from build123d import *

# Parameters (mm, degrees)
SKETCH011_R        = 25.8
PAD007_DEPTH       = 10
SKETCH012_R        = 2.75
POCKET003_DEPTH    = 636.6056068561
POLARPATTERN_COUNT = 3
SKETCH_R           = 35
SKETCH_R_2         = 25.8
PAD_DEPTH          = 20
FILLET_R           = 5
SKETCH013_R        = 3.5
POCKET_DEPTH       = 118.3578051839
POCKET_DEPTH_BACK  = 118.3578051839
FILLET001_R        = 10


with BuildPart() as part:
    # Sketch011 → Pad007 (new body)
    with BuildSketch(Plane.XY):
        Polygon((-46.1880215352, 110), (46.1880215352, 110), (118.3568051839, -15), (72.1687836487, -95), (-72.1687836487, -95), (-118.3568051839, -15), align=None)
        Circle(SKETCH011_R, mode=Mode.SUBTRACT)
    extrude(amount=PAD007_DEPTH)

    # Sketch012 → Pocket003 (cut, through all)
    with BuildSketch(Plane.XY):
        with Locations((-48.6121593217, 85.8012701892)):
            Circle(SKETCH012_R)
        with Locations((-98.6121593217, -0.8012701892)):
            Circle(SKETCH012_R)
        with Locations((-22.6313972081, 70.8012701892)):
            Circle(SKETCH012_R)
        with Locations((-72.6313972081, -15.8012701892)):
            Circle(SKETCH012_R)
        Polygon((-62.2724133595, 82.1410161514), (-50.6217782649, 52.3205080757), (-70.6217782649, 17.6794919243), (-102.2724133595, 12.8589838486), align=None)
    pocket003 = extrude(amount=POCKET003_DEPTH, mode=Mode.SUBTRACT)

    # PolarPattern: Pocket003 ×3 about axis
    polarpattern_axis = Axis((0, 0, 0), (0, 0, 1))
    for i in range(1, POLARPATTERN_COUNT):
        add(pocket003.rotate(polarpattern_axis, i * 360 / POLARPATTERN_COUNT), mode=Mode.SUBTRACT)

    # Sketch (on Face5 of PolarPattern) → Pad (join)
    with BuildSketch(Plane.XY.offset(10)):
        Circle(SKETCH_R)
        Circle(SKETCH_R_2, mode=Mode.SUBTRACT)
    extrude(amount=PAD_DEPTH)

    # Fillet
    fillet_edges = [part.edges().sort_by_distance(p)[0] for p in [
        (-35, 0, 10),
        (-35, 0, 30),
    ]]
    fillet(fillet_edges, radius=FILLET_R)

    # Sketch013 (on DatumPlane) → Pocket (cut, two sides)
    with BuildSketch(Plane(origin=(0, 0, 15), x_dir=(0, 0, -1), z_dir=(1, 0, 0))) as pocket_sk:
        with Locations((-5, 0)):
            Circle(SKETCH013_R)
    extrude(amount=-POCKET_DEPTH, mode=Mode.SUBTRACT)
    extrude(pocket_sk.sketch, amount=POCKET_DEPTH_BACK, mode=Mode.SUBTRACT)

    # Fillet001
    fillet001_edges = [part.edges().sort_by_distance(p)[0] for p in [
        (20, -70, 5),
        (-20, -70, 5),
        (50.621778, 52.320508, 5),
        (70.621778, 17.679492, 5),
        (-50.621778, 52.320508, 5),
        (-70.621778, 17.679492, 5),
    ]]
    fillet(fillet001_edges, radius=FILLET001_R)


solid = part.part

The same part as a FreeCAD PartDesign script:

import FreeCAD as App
import Part
import Sketcher
Q = App.Units.Quantity


def edges_at(feature, points):
    """Names of the edges that pass closest to the given points."""
    edges = feature.Shape.Edges
    near = lambda p: min(range(len(edges)), key=lambda i: edges[i].distToShape(Part.Vertex(*p))[0])
    return sorted({f"Edge{near(p) + 1}" for p in points})


def add_polygon(sketch, points):
    """Adds a closed chain of lines whose ends are joined by coincident constraints."""
    first, n = sketch.GeometryCount, len(points)
    for a, b in zip(points, points[1:] + points[:1]):
        sketch.addGeometry(Part.LineSegment(App.Vector(*a, 0), App.Vector(*b, 0)), False)
    for i in range(n):
        sketch.addConstraint(Sketcher.Constraint("Coincident", first + i, 2, first + (i + 1) % n, 1))

doc = App.newDocument("Part")
body = doc.addObject("PartDesign::Body", "Body")

# Sketch on XY plane
sketch1 = body.newObject("Sketcher::SketchObject", "Sketch")
sketch1.AttachmentSupport = (doc.getObject("XY_Plane"), [""])
sketch1.MapMode = "FlatFace"
add_polygon(sketch1, [(46.188022, 110), (-46.188022, 110), (-118.356805, -15), (-72.168784, -95), (72.168784, -95), (118.356805, -15)])  # lines 0-5
sketch1.addGeometry(Part.Circle(App.Vector(0, 0, 0), App.Vector(0, 0, 1), 25.8), False)  # 6
sketch1.addConstraint(Sketcher.Constraint("Horizontal", 0))
sketch1.addConstraint(Sketcher.Constraint("Horizontal", 3))
sketch1.addConstraint(Sketcher.Constraint("Coincident", 6, 3, -1, 1))
sketch1.addConstraint(Sketcher.Constraint("Symmetric", 1, 2, 4, 2, -2))
sketch1.addConstraint(Sketcher.Constraint("Parallel", 1, 4))
sketch1.addConstraint(Sketcher.Constraint("Parallel", 2, 5))
sketch1.addConstraint(Sketcher.Constraint("Equal", 2, 4))
sketch1.addConstraint(Sketcher.Constraint("Diameter", 6, 51.6))
sketch1.addConstraint(Sketcher.Constraint("Angle", 1, Q("-120 deg")))
sketch1.addConstraint(Sketcher.Constraint("DistanceY", -1, 1, 0, 2, 110.0))
sketch1.addConstraint(Sketcher.Constraint("DistanceY", 1, 2, -1, 1, 15.0))
sketch1.addConstraint(Sketcher.Constraint("DistanceY", 2, 2, -1, 1, 95.0))
sketch1.addConstraint(Sketcher.Constraint("DistanceX", 0, 2, 0, 1, 92.376043))
pad1 = body.newObject("PartDesign::Pad", "Pad")
pad1.Profile = sketch1
pad1.Length = 10

# Sketch on XY plane
sketch2 = body.newObject("Sketcher::SketchObject", "Sketch001")
sketch2.AttachmentSupport = (doc.getObject("XY_Plane"), [""])
sketch2.MapMode = "FlatFace"
sketch2.addGeometry(Part.Circle(App.Vector(-48.612159, 85.80127, 0), App.Vector(0, 0, 1), 2.75), False)  # 0
sketch2.addGeometry(Part.Circle(App.Vector(-98.612159, -0.80127, 0), App.Vector(0, 0, 1), 2.75), False)  # 1
sketch2.addGeometry(Part.Circle(App.Vector(-22.631397, 70.80127, 0), App.Vector(0, 0, 1), 2.75), False)  # 2
sketch2.addGeometry(Part.Circle(App.Vector(-72.631397, -15.80127, 0), App.Vector(0, 0, 1), 2.75), False)  # 3
add_polygon(sketch2, [(-50.621778, 52.320508), (-62.272413, 82.141016), (-102.272413, 12.858984), (-70.621778, 17.679492)])  # lines 4-7
sketch2.addConstraint(Sketcher.Constraint("Equal", 0, 1))
sketch2.addConstraint(Sketcher.Constraint("Equal", 1, 2))
sketch2.addConstraint(Sketcher.Constraint("Equal", 2, 3))
sketch2.addConstraint(Sketcher.Constraint("Parallel", 5, 7))
sketch2.addConstraint(Sketcher.Constraint("Equal", 4, 6))
sketch2.addConstraint(Sketcher.Constraint("Diameter", 0, 5.5))
sketch2.addConstraint(Sketcher.Constraint("Angle", 5, Q("-120 deg")))
sketch2.addConstraint(Sketcher.Constraint("Distance", 5, 80.0))
sketch2.addConstraint(Sketcher.Constraint("Distance", 7, 40.0))
sketch2.addConstraint(Sketcher.Constraint("DistanceX", 1, 3, 0, 3, 50.0))
sketch2.addConstraint(Sketcher.Constraint("DistanceY", 2, 3, 0, 3, 15.0))
sketch2.addConstraint(Sketcher.Constraint("DistanceY", 3, 3, 1, 3, 15.0))
sketch2.addConstraint(Sketcher.Constraint("DistanceX", 3, 3, 2, 3, 50.0))
sketch2.addConstraint(Sketcher.Constraint("Distance", 4, 32.015621))
sketch2.addConstraint(Sketcher.Constraint("DistanceX", 0, 3, -1, 1, 48.612159))
sketch2.addConstraint(Sketcher.Constraint("DistanceY", -1, 1, 0, 3, 85.80127))
sketch2.addConstraint(Sketcher.Constraint("DistanceY", 1, 3, -1, 1, 0.80127))
sketch2.addConstraint(Sketcher.Constraint("DistanceX", 6, 2, -1, 1, 70.621778))
sketch2.addConstraint(Sketcher.Constraint("DistanceY", -1, 1, 6, 2, 17.679492))
sketch2.addConstraint(Sketcher.Constraint("DistanceX", 3, 3, 6, 2, 2.009619))
pocket1 = body.newObject("PartDesign::Pocket", "Pocket")
pocket1.Profile = sketch2
pocket1.Type = "ThroughAll"
pocket1.Reversed = True
doc.recompute()

polarpattern = body.newObject("PartDesign::PolarPattern", "PolarPattern")
polarpattern.Originals = [pocket1]
polarpattern.Axis = (doc.getObject("Z_Axis"), [""])
polarpattern.Angle = 360
polarpattern.Occurrences = 3
body.Tip = polarpattern

# Sketch on XY plane
sketch3 = body.newObject("Sketcher::SketchObject", "Sketch002")
sketch3.AttachmentSupport = (doc.getObject("XY_Plane"), [""])
sketch3.MapMode = "FlatFace"
sketch3.AttachmentOffset = App.Placement(App.Vector(0, 0, 10), App.Rotation())
sketch3.addGeometry(Part.Circle(App.Vector(0, 0, 0), App.Vector(0, 0, 1), 35), False)
sketch3.addGeometry(Part.Circle(App.Vector(0, 0, 0), App.Vector(0, 0, 1), 25.8), False)
sketch3.addConstraint(Sketcher.Constraint("Coincident", 0, 3, -1, 1))
sketch3.addConstraint(Sketcher.Constraint("Coincident", 1, 3, -1, 1))
sketch3.addConstraint(Sketcher.Constraint("Diameter", 0, 70.0))
sketch3.addConstraint(Sketcher.Constraint("Diameter", 1, 51.6))
pad2 = body.newObject("PartDesign::Pad", "Pad001")
pad2.Profile = sketch3
pad2.Length = 20
doc.recompute()

fillet = body.newObject("PartDesign::Fillet", "Fillet")
fillet.Base = (pad2, edges_at(pad2, [(-35, 0, 10), (-35, 0, 30)]))
fillet.Radius = 5

# Sketch on YZ plane
sketch4 = body.newObject("Sketcher::SketchObject", "Sketch003")
sketch4.AttachmentSupport = (doc.getObject("YZ_Plane"), [""])
sketch4.MapMode = "FlatFace"
sketch4.addGeometry(Part.Circle(App.Vector(0, 20, 0), App.Vector(0, 0, 1), 3.5), False)
sketch4.addConstraint(Sketcher.Constraint("PointOnObject", 0, 3, -2))
sketch4.addConstraint(Sketcher.Constraint("Diameter", 0, 7.0))
sketch4.addConstraint(Sketcher.Constraint("DistanceY", -1, 1, 0, 3, 20.0))
pocket2 = body.newObject("PartDesign::Pocket", "Pocket001")
pocket2.Profile = sketch4
pocket2.Type = "ThroughAll"
pocket2.Midplane = True
doc.recompute()

fillet2 = body.newObject("PartDesign::Fillet", "Fillet001")
fillet2.Base = (pocket2, edges_at(pocket2, [
    (20, -70, 5),
    (-20, -70, 5),
    (50.622, 52.321, 5),
    (70.622, 17.679, 5),
    (-50.622, 52.321, 5),
    (-70.622, 17.679, 5),
]))
fillet2.Radius = 10

doc.recompute()
